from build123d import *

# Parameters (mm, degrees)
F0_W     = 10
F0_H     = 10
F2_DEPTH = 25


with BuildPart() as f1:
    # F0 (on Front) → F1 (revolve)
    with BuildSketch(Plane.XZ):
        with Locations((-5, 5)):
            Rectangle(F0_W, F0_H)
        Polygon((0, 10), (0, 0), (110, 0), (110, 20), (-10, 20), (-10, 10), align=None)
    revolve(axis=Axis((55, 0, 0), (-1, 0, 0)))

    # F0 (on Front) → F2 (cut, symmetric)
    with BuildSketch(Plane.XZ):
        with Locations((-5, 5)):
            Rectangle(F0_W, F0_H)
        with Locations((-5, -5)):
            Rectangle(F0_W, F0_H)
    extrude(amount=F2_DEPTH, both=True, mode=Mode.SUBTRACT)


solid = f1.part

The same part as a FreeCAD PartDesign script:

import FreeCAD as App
import Part
import Sketcher


def add_polygon(sketch, points):
    """Adds a closed chain of lines whose ends are joined by coincident constraints."""
    first, n = sketch.GeometryCount, len(points)
    for a, b in zip(points, points[1:] + points[:1]):
        sketch.addGeometry(Part.LineSegment(App.Vector(*a, 0), App.Vector(*b, 0)), False)
    for i in range(n):
        sketch.addConstraint(Sketcher.Constraint("Coincident", first + i, 2, first + (i + 1) % n, 1))

doc = App.newDocument("Part")
body = doc.addObject("PartDesign::Body", "Body")

# Sketch on XZ plane
sketch1 = body.newObject("Sketcher::SketchObject", "Sketch")
sketch1.AttachmentSupport = (doc.getObject("XZ_Plane"), [""])
sketch1.MapMode = "FlatFace"
add_polygon(sketch1, [(-10, 0), (110, 0), (110, 20), (-10, 20)])  # lines 0-3
sketch1.addConstraint(Sketcher.Constraint("Horizontal", 0))
sketch1.addConstraint(Sketcher.Constraint("Vertical", 1))
sketch1.addConstraint(Sketcher.Constraint("Horizontal", 2))
sketch1.addConstraint(Sketcher.Constraint("Vertical", 3))
sketch1.addConstraint(Sketcher.Constraint("PointOnObject", 0, 2, -1))
sketch1.addConstraint(Sketcher.Constraint("DistanceX", 0, 1, 0, 2, 120.0))
sketch1.addConstraint(Sketcher.Constraint("DistanceY", 1, 1, 1, 2, 20.0))
sketch1.addConstraint(Sketcher.Constraint("DistanceX", -1, 1, 0, 2, 110.0))
revolution = body.newObject("PartDesign::Revolution", "Revolution")
revolution.Profile = sketch1
revolution.ReferenceAxis = (sketch1, ["H_Axis"])
revolution.Angle = 360

# Sketch on XZ plane
sketch2 = body.newObject("Sketcher::SketchObject", "Sketch001")
sketch2.AttachmentSupport = (doc.getObject("XZ_Plane"), [""])
sketch2.MapMode = "FlatFace"
add_polygon(sketch2, [(-10, 10), (-10, -10), (0, -10), (0, 10)])  # lines 0-3
sketch2.addConstraint(Sketcher.Constraint("Vertical", 0))
sketch2.addConstraint(Sketcher.Constraint("Horizontal", 1))
sketch2.addConstraint(Sketcher.Constraint("Vertical", 2))
sketch2.addConstraint(Sketcher.Constraint("Horizontal", 3))
sketch2.addConstraint(Sketcher.Constraint("Symmetric", 1, 2, 2, 2, -1, 1))
sketch2.addConstraint(Sketcher.Constraint("DistanceX", 1, 1, 1, 2, 10.0))
sketch2.addConstraint(Sketcher.Constraint("DistanceY", 0, 2, 0, 1, 20.0))
pocket1 = body.newObject("PartDesign::Pocket", "Pocket")
pocket1.Profile = sketch2
pocket1.Length = 50
pocket1.Midplane = True

doc.recompute()
